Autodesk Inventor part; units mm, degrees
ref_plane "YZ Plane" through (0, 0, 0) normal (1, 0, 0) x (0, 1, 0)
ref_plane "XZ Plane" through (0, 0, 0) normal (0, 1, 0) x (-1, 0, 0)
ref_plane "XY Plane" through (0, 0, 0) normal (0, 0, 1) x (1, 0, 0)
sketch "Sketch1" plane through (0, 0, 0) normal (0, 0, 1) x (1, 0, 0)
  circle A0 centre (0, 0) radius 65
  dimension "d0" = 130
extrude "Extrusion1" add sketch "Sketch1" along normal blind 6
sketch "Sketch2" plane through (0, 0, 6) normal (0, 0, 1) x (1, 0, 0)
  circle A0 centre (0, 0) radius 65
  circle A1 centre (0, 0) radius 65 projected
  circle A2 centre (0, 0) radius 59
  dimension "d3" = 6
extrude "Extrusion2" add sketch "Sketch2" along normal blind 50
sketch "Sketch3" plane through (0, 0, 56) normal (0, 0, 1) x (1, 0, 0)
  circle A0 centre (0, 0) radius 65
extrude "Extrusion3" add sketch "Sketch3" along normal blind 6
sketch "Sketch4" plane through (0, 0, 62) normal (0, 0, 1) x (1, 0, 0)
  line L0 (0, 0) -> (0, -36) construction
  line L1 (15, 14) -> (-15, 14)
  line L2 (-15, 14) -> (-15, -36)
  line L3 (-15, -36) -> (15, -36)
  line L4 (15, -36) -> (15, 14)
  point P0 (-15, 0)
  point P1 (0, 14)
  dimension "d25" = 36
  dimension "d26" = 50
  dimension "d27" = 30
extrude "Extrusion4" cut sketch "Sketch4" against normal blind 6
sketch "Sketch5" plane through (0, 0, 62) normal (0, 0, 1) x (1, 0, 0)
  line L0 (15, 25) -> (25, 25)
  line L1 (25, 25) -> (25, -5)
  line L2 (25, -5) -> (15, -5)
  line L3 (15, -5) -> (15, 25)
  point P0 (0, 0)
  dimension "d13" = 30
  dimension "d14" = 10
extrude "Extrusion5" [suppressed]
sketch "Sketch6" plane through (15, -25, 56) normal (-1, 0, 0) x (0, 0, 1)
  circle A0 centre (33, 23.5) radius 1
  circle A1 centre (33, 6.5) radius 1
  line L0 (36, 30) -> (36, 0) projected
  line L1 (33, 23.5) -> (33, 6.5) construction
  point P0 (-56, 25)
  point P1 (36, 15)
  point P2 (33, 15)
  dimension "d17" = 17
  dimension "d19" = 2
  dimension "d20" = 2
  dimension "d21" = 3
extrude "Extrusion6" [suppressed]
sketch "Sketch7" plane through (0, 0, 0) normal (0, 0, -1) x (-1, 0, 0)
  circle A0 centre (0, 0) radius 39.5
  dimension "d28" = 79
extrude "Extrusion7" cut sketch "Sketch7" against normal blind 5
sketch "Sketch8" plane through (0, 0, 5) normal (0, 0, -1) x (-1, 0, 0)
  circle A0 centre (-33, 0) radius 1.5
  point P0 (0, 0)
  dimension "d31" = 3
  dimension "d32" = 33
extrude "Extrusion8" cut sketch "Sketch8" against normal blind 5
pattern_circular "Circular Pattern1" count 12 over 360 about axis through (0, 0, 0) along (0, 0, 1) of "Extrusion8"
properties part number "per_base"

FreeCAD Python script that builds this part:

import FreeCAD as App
import Part
import Sketcher
Q = App.Units.Quantity


def add_polygon(sketch, points):
    """Adds a closed chain of lines whose ends are joined by coincident constraints."""
    first, n = sketch.GeometryCount, len(points)
    for a, b in zip(points, points[1:] + points[:1]):
        sketch.addGeometry(Part.LineSegment(App.Vector(*a, 0), App.Vector(*b, 0)), False)
    for i in range(n):
        sketch.addConstraint(Sketcher.Constraint("Coincident", first + i, 2, first + (i + 1) % n, 1))

doc = App.newDocument("Part")
params = doc.addObject("Spreadsheet::Sheet", "Params")
for row, (alias, value) in enumerate([
    ("sketch1_diameter", "130 mm"),
    ("pad1_length", "6 mm"),
    ("sketch2_diameter", "130 mm"),
    ("sketch2_diameter2", "118 mm"),
    ("pad2_length", "50 mm"),
    ("sketch3_diameter", "130 mm"),
    ("pad3_length", "6 mm"),
    ("sketch4_width", "30 mm"),
    ("sketch4_height", "50 mm"),
    ("pocket1_length", "6 mm"),
    ("sketch5_diameter", "79 mm"),
    ("pocket2_length", "5 mm"),
    ("sketch6_diameter", "3 mm"),
    ("pocket3_length", "5 mm"),
], start=1):
    params.set(f"A{row}", alias)
    params.set(f"B{row}", "=" + value)
    params.setAlias(f"B{row}", alias)

body = doc.addObject("PartDesign::Body", "Body")

sketch1 = doc.addObject("Sketcher::SketchObject", "Sketch")
body.addObject(sketch1)
sketch1.AttachmentSupport = (doc.XY_Plane, [""])
sketch1.MapMode = "FlatFace"
sketch1.addGeometry(Part.Circle(App.Vector(0, 0, 0), App.Vector(0, 0, 1), 65), False)
sketch1.addConstraint([
    Sketcher.Constraint("Coincident", 0, 3, -1, 1),
    Sketcher.Constraint("Diameter", 0, Q("130 mm")),
])
sketch1.setExpression("Constraints[1]", "Params.sketch1_diameter")
pad1 = doc.addObject("PartDesign::Pad", "Pad")
body.addObject(pad1)
pad1.Profile = sketch1
pad1.setExpression("Length", "Params.pad1_length")

sketch2 = doc.addObject("Sketcher::SketchObject", "Sketch001")
body.addObject(sketch2)
sketch2.AttachmentSupport = (doc.XY_Plane, [""])
sketch2.MapMode = "FlatFace"
sketch2.AttachmentOffset = App.Placement(App.Vector(0, 0, 6), App.Rotation())
sketch2.addGeometry([
    Part.Circle(App.Vector(0, 0, 0), App.Vector(0, 0, 1), 65),
    Part.Circle(App.Vector(0, 0, 0), App.Vector(0, 0, 1), 59),
], False)
sketch2.addConstraint([
    Sketcher.Constraint("Coincident", 0, 3, -1, 1),
    Sketcher.Constraint("Coincident", 1, 3, -1, 1),
    Sketcher.Constraint("Diameter", 0, Q("130 mm")),
    Sketcher.Constraint("Diameter", 1, Q("118 mm")),
])
sketch2.setExpression("Constraints[2]", "Params.sketch2_diameter")
sketch2.setExpression("Constraints[3]", "Params.sketch2_diameter2")
pad2 = doc.addObject("PartDesign::Pad", "Pad001")
body.addObject(pad2)
pad2.Profile = sketch2
pad2.setExpression("Length", "Params.pad2_length")

sketch3 = doc.addObject("Sketcher::SketchObject", "Sketch002")
body.addObject(sketch3)
sketch3.AttachmentSupport = (doc.XY_Plane, [""])
sketch3.MapMode = "FlatFace"
sketch3.AttachmentOffset = App.Placement(App.Vector(0, 0, 56), App.Rotation())
sketch3.addGeometry(Part.Circle(App.Vector(0, 0, 0), App.Vector(0, 0, 1), 65), False)
sketch3.addConstraint([
    Sketcher.Constraint("Coincident", 0, 3, -1, 1),
    Sketcher.Constraint("Diameter", 0, Q("130 mm")),
])
sketch3.setExpression("Constraints[1]", "Params.sketch3_diameter")
pad3 = doc.addObject("PartDesign::Pad", "Pad002")
body.addObject(pad3)
pad3.Profile = sketch3
pad3.setExpression("Length", "Params.pad3_length")

sketch4 = doc.addObject("Sketcher::SketchObject", "Sketch003")
body.addObject(sketch4)
sketch4.AttachmentSupport = (doc.XY_Plane, [""])
sketch4.MapMode = "FlatFace"
sketch4.AttachmentOffset = App.Placement(App.Vector(0, 0, 62), App.Rotation())
add_polygon(sketch4, [(15, -36), (15, 14), (-15, 14), (-15, -36)])
sketch4.addConstraint([
    Sketcher.Constraint("Vertical", 0),
    Sketcher.Constraint("Horizontal", 1),
    Sketcher.Constraint("Vertical", 2),
    Sketcher.Constraint("Horizontal", 3),
    Sketcher.Constraint("DistanceX", 1, 2, 1, 1, Q("30 mm")),
    Sketcher.Constraint("DistanceY", 0, 1, 0, 2, Q("50 mm")),
    Sketcher.Constraint("DistanceY", 2, 2, -1, 1, Q("36 mm")),
    Sketcher.Constraint("DistanceX", -1, 1, 0, 2, Q("15 mm")),
])
sketch4.setExpression("Constraints[8]", "Params.sketch4_width")
sketch4.setExpression("Constraints[9]", "Params.sketch4_height")
pocket1 = doc.addObject("PartDesign::Pocket", "Pocket")
body.addObject(pocket1)
pocket1.Profile = sketch4
pocket1.setExpression("Length", "Params.pocket1_length")

sketch5 = doc.addObject("Sketcher::SketchObject", "Sketch004")
body.addObject(sketch5)
sketch5.AttachmentSupport = (doc.XY_Plane, [""])
sketch5.MapMode = "FlatFace"
sketch5.addGeometry(Part.Circle(App.Vector(0, 0, 0), App.Vector(0, 0, 1), 40), False)
sketch5.addConstraint([
    Sketcher.Constraint("Coincident", 0, 3, -1, 1),
    Sketcher.Constraint("Diameter", 0, Q("79 mm")),
])
sketch5.setExpression("Constraints[1]", "Params.sketch5_diameter")
pocket2 = doc.addObject("PartDesign::Pocket", "Pocket001")
body.addObject(pocket2)
pocket2.Profile = sketch5
pocket2.setExpression("Length", "Params.pocket2_length")
pocket2.Reversed = True

sketch6 = doc.addObject("Sketcher::SketchObject", "Sketch005")
body.addObject(sketch6)
sketch6.AttachmentSupport = (doc.XY_Plane, [""])
sketch6.MapMode = "FlatFace"
sketch6.AttachmentOffset = App.Placement(App.Vector(0, 0, 5), App.Rotation())
sketch6.addGeometry(Part.Circle(App.Vector(33, 0, 0), App.Vector(0, 0, 1), 1.5), False)
sketch6.addConstraint([
    Sketcher.Constraint("PointOnObject", 0, 3, -1),
    Sketcher.Constraint("Diameter", 0, Q("3 mm")),
    Sketcher.Constraint("DistanceX", -1, 1, 0, 3, Q("33 mm")),
])
sketch6.setExpression("Constraints[1]", "Params.sketch6_diameter")
pocket3 = doc.addObject("PartDesign::Pocket", "Pocket002")
body.addObject(pocket3)
pocket3.Profile = sketch6
pocket3.setExpression("Length", "Params.pocket3_length")
pocket3.Reversed = True
doc.recompute()

polarpattern = doc.addObject("PartDesign::PolarPattern", "PolarPattern")
body.addObject(polarpattern)
polarpattern.Originals = [pocket3]
polarpattern.Axis = (doc.Z_Axis, [""])
polarpattern.Angle = 360
polarpattern.Occurrences = 12
body.Tip = polarpattern

doc.recompute()
